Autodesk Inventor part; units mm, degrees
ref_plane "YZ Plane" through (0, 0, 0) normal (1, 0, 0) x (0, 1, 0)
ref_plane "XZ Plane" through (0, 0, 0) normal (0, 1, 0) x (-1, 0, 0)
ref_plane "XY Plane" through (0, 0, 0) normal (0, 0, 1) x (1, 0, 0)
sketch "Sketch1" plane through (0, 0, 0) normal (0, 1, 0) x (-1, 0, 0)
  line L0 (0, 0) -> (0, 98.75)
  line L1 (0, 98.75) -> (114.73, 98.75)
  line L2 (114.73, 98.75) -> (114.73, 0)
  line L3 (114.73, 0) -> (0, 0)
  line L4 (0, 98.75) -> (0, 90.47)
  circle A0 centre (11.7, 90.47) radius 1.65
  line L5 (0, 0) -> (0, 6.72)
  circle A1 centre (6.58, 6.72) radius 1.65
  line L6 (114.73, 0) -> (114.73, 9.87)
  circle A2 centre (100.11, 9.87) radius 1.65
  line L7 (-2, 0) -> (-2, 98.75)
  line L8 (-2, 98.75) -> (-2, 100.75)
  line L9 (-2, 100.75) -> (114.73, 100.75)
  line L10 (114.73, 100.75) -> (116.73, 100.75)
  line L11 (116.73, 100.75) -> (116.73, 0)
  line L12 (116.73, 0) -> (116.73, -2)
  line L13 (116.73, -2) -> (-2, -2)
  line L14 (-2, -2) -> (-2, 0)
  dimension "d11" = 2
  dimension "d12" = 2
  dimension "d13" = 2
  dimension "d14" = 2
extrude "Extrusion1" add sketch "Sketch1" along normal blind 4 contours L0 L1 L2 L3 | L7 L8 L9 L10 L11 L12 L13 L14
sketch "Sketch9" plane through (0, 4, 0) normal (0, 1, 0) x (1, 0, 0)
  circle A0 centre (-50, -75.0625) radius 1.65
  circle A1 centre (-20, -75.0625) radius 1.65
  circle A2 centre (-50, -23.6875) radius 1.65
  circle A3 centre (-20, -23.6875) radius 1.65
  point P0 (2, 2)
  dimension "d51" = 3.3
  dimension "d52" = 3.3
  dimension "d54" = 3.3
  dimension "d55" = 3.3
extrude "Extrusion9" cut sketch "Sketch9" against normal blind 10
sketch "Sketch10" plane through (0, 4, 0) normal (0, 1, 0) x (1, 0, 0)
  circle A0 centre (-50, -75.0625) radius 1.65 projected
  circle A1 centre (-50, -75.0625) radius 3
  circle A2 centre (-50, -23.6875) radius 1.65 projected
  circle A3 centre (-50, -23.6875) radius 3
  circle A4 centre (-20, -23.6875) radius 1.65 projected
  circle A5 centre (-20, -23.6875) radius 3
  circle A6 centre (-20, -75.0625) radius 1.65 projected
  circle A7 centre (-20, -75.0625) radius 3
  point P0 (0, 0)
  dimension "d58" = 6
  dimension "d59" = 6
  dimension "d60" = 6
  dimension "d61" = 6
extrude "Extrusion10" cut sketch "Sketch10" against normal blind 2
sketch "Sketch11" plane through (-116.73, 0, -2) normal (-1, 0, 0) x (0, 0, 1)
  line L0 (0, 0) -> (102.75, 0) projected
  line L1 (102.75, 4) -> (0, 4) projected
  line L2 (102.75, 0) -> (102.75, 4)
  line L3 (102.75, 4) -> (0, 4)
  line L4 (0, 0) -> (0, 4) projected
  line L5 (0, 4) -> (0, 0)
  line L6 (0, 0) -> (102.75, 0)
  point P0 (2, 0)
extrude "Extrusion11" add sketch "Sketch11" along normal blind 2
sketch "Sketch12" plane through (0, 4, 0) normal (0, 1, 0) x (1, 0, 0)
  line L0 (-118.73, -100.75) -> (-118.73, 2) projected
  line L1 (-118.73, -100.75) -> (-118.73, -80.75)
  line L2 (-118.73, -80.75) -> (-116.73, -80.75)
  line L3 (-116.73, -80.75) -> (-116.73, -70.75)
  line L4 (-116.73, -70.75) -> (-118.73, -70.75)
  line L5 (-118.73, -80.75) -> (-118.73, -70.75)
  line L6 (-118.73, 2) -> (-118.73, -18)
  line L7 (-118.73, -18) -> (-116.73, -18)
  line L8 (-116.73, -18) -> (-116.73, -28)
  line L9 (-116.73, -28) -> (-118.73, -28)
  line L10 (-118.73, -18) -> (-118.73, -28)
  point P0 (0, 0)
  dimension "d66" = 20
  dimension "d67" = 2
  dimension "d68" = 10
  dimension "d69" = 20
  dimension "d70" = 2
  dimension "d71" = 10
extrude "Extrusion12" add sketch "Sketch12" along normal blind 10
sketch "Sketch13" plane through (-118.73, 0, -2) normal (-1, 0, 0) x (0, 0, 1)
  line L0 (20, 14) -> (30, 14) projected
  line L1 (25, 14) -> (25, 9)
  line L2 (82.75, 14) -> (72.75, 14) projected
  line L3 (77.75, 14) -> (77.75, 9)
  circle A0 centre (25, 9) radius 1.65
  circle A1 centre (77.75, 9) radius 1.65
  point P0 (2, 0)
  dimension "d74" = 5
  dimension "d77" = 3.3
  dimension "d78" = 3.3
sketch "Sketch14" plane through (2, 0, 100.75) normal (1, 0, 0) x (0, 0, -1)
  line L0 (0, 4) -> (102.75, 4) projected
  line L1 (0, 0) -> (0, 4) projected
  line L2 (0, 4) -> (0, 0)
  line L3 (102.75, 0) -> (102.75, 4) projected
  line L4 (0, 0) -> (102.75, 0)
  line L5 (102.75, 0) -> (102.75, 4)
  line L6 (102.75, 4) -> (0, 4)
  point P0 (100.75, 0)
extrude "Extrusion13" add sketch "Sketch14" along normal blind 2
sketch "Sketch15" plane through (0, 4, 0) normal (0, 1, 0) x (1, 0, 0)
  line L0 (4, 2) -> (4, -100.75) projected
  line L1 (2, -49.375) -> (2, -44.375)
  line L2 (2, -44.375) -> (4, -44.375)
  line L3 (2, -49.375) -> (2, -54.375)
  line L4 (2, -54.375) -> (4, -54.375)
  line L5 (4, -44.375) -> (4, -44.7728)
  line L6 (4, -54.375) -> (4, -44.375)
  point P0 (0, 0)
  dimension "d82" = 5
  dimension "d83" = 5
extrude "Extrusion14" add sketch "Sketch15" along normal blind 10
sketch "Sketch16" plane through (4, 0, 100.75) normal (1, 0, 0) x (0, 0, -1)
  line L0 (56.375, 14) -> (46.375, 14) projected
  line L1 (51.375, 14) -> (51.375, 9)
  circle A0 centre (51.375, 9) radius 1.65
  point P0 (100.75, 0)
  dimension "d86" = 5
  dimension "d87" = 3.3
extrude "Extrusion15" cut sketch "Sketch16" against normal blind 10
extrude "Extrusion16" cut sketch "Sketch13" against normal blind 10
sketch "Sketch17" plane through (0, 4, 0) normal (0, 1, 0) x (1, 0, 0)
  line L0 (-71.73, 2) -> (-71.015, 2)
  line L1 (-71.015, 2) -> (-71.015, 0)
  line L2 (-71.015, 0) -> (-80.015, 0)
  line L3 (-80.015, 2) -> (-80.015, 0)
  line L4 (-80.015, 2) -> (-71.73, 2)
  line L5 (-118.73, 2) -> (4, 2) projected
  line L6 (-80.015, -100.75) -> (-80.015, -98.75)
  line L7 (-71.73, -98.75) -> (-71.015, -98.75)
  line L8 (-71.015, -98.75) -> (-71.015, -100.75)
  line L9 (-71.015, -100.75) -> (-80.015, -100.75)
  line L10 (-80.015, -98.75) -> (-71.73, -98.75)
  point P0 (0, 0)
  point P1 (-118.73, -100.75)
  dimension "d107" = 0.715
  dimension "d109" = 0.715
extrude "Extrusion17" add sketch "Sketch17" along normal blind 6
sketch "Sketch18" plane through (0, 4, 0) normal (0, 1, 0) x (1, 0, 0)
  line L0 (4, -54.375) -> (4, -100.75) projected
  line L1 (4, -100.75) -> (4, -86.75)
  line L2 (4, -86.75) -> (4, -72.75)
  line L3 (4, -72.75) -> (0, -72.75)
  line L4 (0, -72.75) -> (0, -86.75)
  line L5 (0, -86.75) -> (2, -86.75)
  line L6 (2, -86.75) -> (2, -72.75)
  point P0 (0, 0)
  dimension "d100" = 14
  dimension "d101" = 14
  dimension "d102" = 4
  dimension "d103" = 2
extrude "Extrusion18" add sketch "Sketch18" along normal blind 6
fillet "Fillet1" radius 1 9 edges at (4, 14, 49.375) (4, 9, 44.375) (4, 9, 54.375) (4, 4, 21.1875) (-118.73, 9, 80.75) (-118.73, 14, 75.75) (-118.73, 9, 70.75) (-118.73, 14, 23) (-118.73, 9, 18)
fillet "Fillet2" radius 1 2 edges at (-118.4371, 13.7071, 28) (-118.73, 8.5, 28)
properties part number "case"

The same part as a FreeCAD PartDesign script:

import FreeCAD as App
import Part
import Sketcher


def edges_at(feature, points):
    """Names of the edges that pass closest to the given points."""
    edges = feature.Shape.Edges
    near = lambda p: min(range(len(edges)), key=lambda i: edges[i].distToShape(Part.Vertex(*p))[0])
    return sorted({f"Edge{near(p) + 1}" for p in points})

doc = App.newDocument("Part")
body = doc.addObject("PartDesign::Body", "Body")

sketch1 = doc.addObject("Sketcher::SketchObject", "Sketch")
body.addObject(sketch1)
sketch1.AttachmentSupport = (doc.XZ_Plane, [""])
sketch1.MapMode = "FlatFace"
sketch1.addGeometry([
    Part.LineSegment(App.Vector(2, -2, 0), App.Vector(-116.7, -2, 0)),
    Part.LineSegment(App.Vector(-116.7, -2, 0), App.Vector(-116.7, 100.8, 0)),
    Part.LineSegment(App.Vector(-116.7, 100.8, 0), App.Vector(2, 100.8, 0)),
    Part.LineSegment(App.Vector(2, 100.8, 0), App.Vector(2, -2, 0)),
    Part.Circle(App.Vector(-6.6, 6.7, 0), App.Vector(0, 0, 1), 1.6),
    Part.Circle(App.Vector(-100.1, 9.9, 0), App.Vector(0, 0, 1), 1.6),
    Part.Circle(App.Vector(-11.7, 90.5, 0), App.Vector(0, 0, 1), 1.6),
], False)
sketch1.addConstraint([
    Sketcher.Constraint("Coincident", 0, 2, 1, 1),
    Sketcher.Constraint("Coincident", 1, 2, 2, 1),
    Sketcher.Constraint("Coincident", 2, 2, 3, 1),
    Sketcher.Constraint("Coincident", 3, 2, 0, 1),
    Sketcher.Constraint("Horizontal", 0),
    Sketcher.Constraint("Vertical", 1),
    Sketcher.Constraint("Horizontal", 2),
    Sketcher.Constraint("Vertical", 3),
    Sketcher.Constraint("Equal", 4, 5),
    Sketcher.Constraint("Equal", 5, 6),
    Sketcher.Constraint("DistanceY", 0, 2, -1, 1, 2.0),
    Sketcher.Constraint("DistanceX", -1, 1, 2, 2, 2.0),
    Sketcher.Constraint("Diameter", 4, 3.3),
    Sketcher.Constraint("DistanceX", 0, 2, 0, 1, 118.73),
    Sketcher.Constraint("DistanceY", 1, 1, 1, 2, 102.75),
    Sketcher.Constraint("DistanceX", 6, 3, -1, 1, 11.7),
    Sketcher.Constraint("DistanceY", 5, 3, 6, 3, 80.6),
    Sketcher.Constraint("DistanceX", 4, 3, -1, 1, 6.58),
    Sketcher.Constraint("DistanceY", -1, 1, 4, 3, 6.72),
    Sketcher.Constraint("DistanceX", 5, 3, -1, 1, 100.11),
    Sketcher.Constraint("DistanceY", -1, 1, 5, 3, 9.87),
])
pad1 = doc.addObject("PartDesign::Pad", "Pad")
body.addObject(pad1)
pad1.Profile = sketch1
pad1.Length = 4
pad1.Reversed = True

sketch2 = doc.addObject("Sketcher::SketchObject", "Sketch001")
body.addObject(sketch2)
sketch2.AttachmentSupport = (doc.XZ_Plane, [""])
sketch2.MapMode = "FlatFace"
sketch2.AttachmentOffset = App.Placement(App.Vector(0, 0, -4), App.Rotation())
sketch2.addGeometry([
    Part.Circle(App.Vector(-50, 75.1, 0), App.Vector(0, 0, 1), 1.6),
    Part.Circle(App.Vector(-20, 75.1, 0), App.Vector(0, 0, 1), 1.6),
    Part.Circle(App.Vector(-50, 23.7, 0), App.Vector(0, 0, 1), 1.6),
    Part.Circle(App.Vector(-20, 23.7, 0), App.Vector(0, 0, 1), 1.6),
], False)
sketch2.addConstraint([
    Sketcher.Constraint("Equal", 0, 1),
    Sketcher.Constraint("Equal", 1, 2),
    Sketcher.Constraint("Equal", 2, 3),
    Sketcher.Constraint("Horizontal", 0, 3, 1, 3),
    Sketcher.Constraint("Horizontal", 2, 3, 3, 3),
    Sketcher.Constraint("Vertical", 0, 3, 2, 3),
    Sketcher.Constraint("Vertical", 1, 3, 3, 3),
    Sketcher.Constraint("Diameter", 0, 3.3),
    Sketcher.Constraint("DistanceX", 0, 3, -1, 1, 50.0),
    Sketcher.Constraint("DistanceX", 1, 3, -1, 1, 20.0),
    Sketcher.Constraint("DistanceY", 2, 3, 0, 3, 51.375),
    Sketcher.Constraint("DistanceY", -1, 1, 0, 3, 75.0625),
])
pocket1 = doc.addObject("PartDesign::Pocket", "Pocket")
body.addObject(pocket1)
pocket1.Profile = sketch2
pocket1.Length = 10
pocket1.Reversed = True

sketch3 = doc.addObject("Sketcher::SketchObject", "Sketch002")
body.addObject(sketch3)
sketch3.AttachmentSupport = (doc.XZ_Plane, [""])
sketch3.MapMode = "FlatFace"
sketch3.AttachmentOffset = App.Placement(App.Vector(0, 0, -4), App.Rotation())
sketch3.addGeometry([
    Part.Circle(App.Vector(-50, 75.1, 0), App.Vector(0, 0, 1), 3),
    Part.Circle(App.Vector(-50, 75.1, 0), App.Vector(0, 0, 1), 1.6),
    Part.Circle(App.Vector(-50, 23.7, 0), App.Vector(0, 0, 1), 3),
    Part.Circle(App.Vector(-50, 23.7, 0), App.Vector(0, 0, 1), 1.6),
    Part.Circle(App.Vector(-20, 23.7, 0), App.Vector(0, 0, 1), 3),
    Part.Circle(App.Vector(-20, 23.7, 0), App.Vector(0, 0, 1), 1.6),
    Part.Circle(App.Vector(-20, 75.1, 0), App.Vector(0, 0, 1), 3),
    Part.Circle(App.Vector(-20, 75.1, 0), App.Vector(0, 0, 1), 1.6),
], False)
sketch3.addConstraint([
    Sketcher.Constraint("Coincident", 1, 3, 0, 3),
    Sketcher.Constraint("Coincident", 3, 3, 2, 3),
    Sketcher.Constraint("Coincident", 5, 3, 4, 3),
    Sketcher.Constraint("Coincident", 7, 3, 6, 3),
    Sketcher.Constraint("Equal", 0, 2),
    Sketcher.Constraint("Equal", 1, 3),
    Sketcher.Constraint("Equal", 2, 4),
    Sketcher.Constraint("Equal", 3, 5),
    Sketcher.Constraint("Equal", 4, 6),
    Sketcher.Constraint("Equal", 5, 7),
    Sketcher.Constraint("Horizontal", 3, 3, 4, 3),
    Sketcher.Constraint("Horizontal", 1, 3, 6, 3),
    Sketcher.Constraint("Vertical", 1, 3, 2, 3),
    Sketcher.Constraint("Vertical", 5, 3, 6, 3),
    Sketcher.Constraint("Diameter", 0, 6.0),
    Sketcher.Constraint("Diameter", 1, 3.3),
    Sketcher.Constraint("DistanceX", 0, 3, -1, 1, 50.0),
    Sketcher.Constraint("DistanceX", 4, 3, -1, 1, 20.0),
    Sketcher.Constraint("DistanceY", 2, 3, 0, 3, 51.375),
    Sketcher.Constraint("DistanceY", -1, 1, 0, 3, 75.0625),
])
pocket2 = doc.addObject("PartDesign::Pocket", "Pocket001")
body.addObject(pocket2)
pocket2.Profile = sketch3
pocket2.Length = 2
pocket2.Reversed = True

sketch4 = doc.addObject("Sketcher::SketchObject", "Sketch003")
body.addObject(sketch4)
sketch4.AttachmentSupport = (doc.YZ_Plane, [""])
sketch4.MapMode = "FlatFace"
sketch4.AttachmentOffset = App.Placement(App.Vector(0, 0, -116.73), App.Rotation())
sketch4.addGeometry([
    Part.LineSegment(App.Vector(4, -2, 0), App.Vector(0, -2, 0)),
    Part.LineSegment(App.Vector(0, -2, 0), App.Vector(0, 100.8, 0)),
    Part.LineSegment(App.Vector(0, 100.8, 0), App.Vector(4, 100.8, 0)),
    Part.LineSegment(App.Vector(4, 100.8, 0), App.Vector(4, -2, 0)),
], False)
sketch4.addConstraint([
    Sketcher.Constraint("Coincident", 0, 2, 1, 1),
    Sketcher.Constraint("Coincident", 1, 2, 2, 1),
    Sketcher.Constraint("Coincident", 2, 2, 3, 1),
    Sketcher.Constraint("Coincident", 3, 2, 0, 1),
    Sketcher.Constraint("Horizontal", 0),
    Sketcher.Constraint("Vertical", 1),
    Sketcher.Constraint("Horizontal", 2),
    Sketcher.Constraint("Vertical", 3),
    Sketcher.Constraint("PointOnObject", 0, 2, -2),
    Sketcher.Constraint("DistanceX", 0, 2, 0, 1, 4.0),
    Sketcher.Constraint("DistanceY", 0, 2, -1, 1, 2.0),
    Sketcher.Constraint("DistanceY", 1, 1, 1, 2, 102.75),
])
pad2 = doc.addObject("PartDesign::Pad", "Pad001")
body.addObject(pad2)
pad2.Profile = sketch4
pad2.Length = 2
pad2.Reversed = True

sketch5 = doc.addObject("Sketcher::SketchObject", "Sketch004")
body.addObject(sketch5)
sketch5.AttachmentSupport = (doc.XZ_Plane, [""])
sketch5.MapMode = "FlatFace"
sketch5.AttachmentOffset = App.Placement(App.Vector(0, 0, -4), App.Rotation())
sketch5.addGeometry([
    Part.LineSegment(App.Vector(-118.7, 18, 0), App.Vector(-118.7, 28, 0)),
    Part.LineSegment(App.Vector(-118.7, 28, 0), App.Vector(-116.7, 28, 0)),
    Part.LineSegment(App.Vector(-116.7, 28, 0), App.Vector(-116.7, 18, 0)),
    Part.LineSegment(App.Vector(-116.7, 18, 0), App.Vector(-118.7, 18, 0)),
    Part.LineSegment(App.Vector(-118.7, 70.8, 0), App.Vector(-118.7, 80.8, 0)),
    Part.LineSegment(App.Vector(-118.7, 80.8, 0), App.Vector(-116.7, 80.8, 0)),
    Part.LineSegment(App.Vector(-116.7, 80.8, 0), App.Vector(-116.7, 70.8, 0)),
    Part.LineSegment(App.Vector(-116.7, 70.8, 0), App.Vector(-118.7, 70.8, 0)),
], False)
sketch5.addConstraint([
    Sketcher.Constraint("Coincident", 0, 2, 1, 1),
    Sketcher.Constraint("Coincident", 1, 2, 2, 1),
    Sketcher.Constraint("Coincident", 2, 2, 3, 1),
    Sketcher.Constraint("Coincident", 3, 2, 0, 1),
    Sketcher.Constraint("Coincident", 4, 2, 5, 1),
    Sketcher.Constraint("Coincident", 5, 2, 6, 1),
    Sketcher.Constraint("Coincident", 6, 2, 7, 1),
    Sketcher.Constraint("Coincident", 7, 2, 4, 1),
    Sketcher.Constraint("Vertical", 0),
    Sketcher.Constraint("Horizontal", 1),
    Sketcher.Constraint("Vertical", 2),
    Sketcher.Constraint("Horizontal", 3),
    Sketcher.Constraint("Vertical", 4),
    Sketcher.Constraint("Horizontal", 5),
    Sketcher.Constraint("Vertical", 6),
    Sketcher.Constraint("Horizontal", 7),
    Sketcher.Constraint("Vertical", 3, 2, 4, 2),
    Sketcher.Constraint("Vertical", 2, 2, 5, 2),
    Sketcher.Constraint("Equal", 2, 4),
    Sketcher.Constraint("DistanceX", 1, 1, 1, 2, 2.0),
    Sketcher.Constraint("DistanceY", 0, 1, 0, 2, 10.0),
    Sketcher.Constraint("DistanceY", -1, 1, 0, 2, 28.0),
    Sketcher.Constraint("DistanceX", 0, 2, -1, 1, 118.73),
    Sketcher.Constraint("DistanceY", -1, 1, 4, 2, 80.75),
])
pad3 = doc.addObject("PartDesign::Pad", "Pad002")
body.addObject(pad3)
pad3.Profile = sketch5
pad3.Length = 10
pad3.Reversed = True

sketch6 = doc.addObject("Sketcher::SketchObject", "Sketch005")
body.addObject(sketch6)
sketch6.AttachmentSupport = (doc.YZ_Plane, [""])
sketch6.MapMode = "FlatFace"
sketch6.AttachmentOffset = App.Placement(App.Vector(0, 0, 2), App.Rotation())
sketch6.addGeometry([
    Part.LineSegment(App.Vector(4, -2, 0), App.Vector(4, 100.8, 0)),
    Part.LineSegment(App.Vector(4, 100.8, 0), App.Vector(0, 100.8, 0)),
    Part.LineSegment(App.Vector(0, 100.8, 0), App.Vector(0, -2, 0)),
    Part.LineSegment(App.Vector(0, -2, 0), App.Vector(4, -2, 0)),
], False)
sketch6.addConstraint([
    Sketcher.Constraint("Coincident", 0, 2, 1, 1),
    Sketcher.Constraint("Coincident", 1, 2, 2, 1),
    Sketcher.Constraint("Coincident", 2, 2, 3, 1),
    Sketcher.Constraint("Coincident", 3, 2, 0, 1),
    Sketcher.Constraint("Vertical", 0),
    Sketcher.Constraint("Horizontal", 1),
    Sketcher.Constraint("Vertical", 2),
    Sketcher.Constraint("Horizontal", 3),
    Sketcher.Constraint("PointOnObject", 1, 2, -2),
    Sketcher.Constraint("DistanceX", 1, 2, 1, 1, 4.0),
    Sketcher.Constraint("DistanceY", 2, 2, -1, 1, 2.0),
    Sketcher.Constraint("DistanceY", 0, 1, 0, 2, 102.75),
])
pad4 = doc.addObject("PartDesign::Pad", "Pad003")
body.addObject(pad4)
pad4.Profile = sketch6
pad4.Length = 2

sketch7 = doc.addObject("Sketcher::SketchObject", "Sketch006")
body.addObject(sketch7)
sketch7.AttachmentSupport = (doc.XZ_Plane, [""])
sketch7.MapMode = "FlatFace"
sketch7.AttachmentOffset = App.Placement(App.Vector(0, 0, -4), App.Rotation())
sketch7.addGeometry([
    Part.LineSegment(App.Vector(4, 54.4, 0), App.Vector(4, 44.4, 0)),
    Part.LineSegment(App.Vector(4, 44.4, 0), App.Vector(2, 44.4, 0)),
    Part.LineSegment(App.Vector(2, 44.4, 0), App.Vector(2, 54.4, 0)),
    Part.LineSegment(App.Vector(2, 54.4, 0), App.Vector(4, 54.4, 0)),
], False)
sketch7.addConstraint([
    Sketcher.Constraint("Coincident", 0, 2, 1, 1),
    Sketcher.Constraint("Coincident", 1, 2, 2, 1),
    Sketcher.Constraint("Coincident", 2, 2, 3, 1),
    Sketcher.Constraint("Coincident", 3, 2, 0, 1),
    Sketcher.Constraint("Vertical", 0),
    Sketcher.Constraint("Horizontal", 1),
    Sketcher.Constraint("Vertical", 2),
    Sketcher.Constraint("Horizontal", 3),
    Sketcher.Constraint("DistanceX", 1, 2, 1, 1, 2.0),
    Sketcher.Constraint("DistanceY", 0, 2, 0, 1, 10.0),
    Sketcher.Constraint("DistanceX", -1, 1, 0, 2, 4.0),
    Sketcher.Constraint("DistanceY", -1, 1, 0, 2, 44.375),
])
pad5 = doc.addObject("PartDesign::Pad", "Pad004")
body.addObject(pad5)
pad5.Profile = sketch7
pad5.Length = 10
pad5.Reversed = True

sketch8 = doc.addObject("Sketcher::SketchObject", "Sketch007")
body.addObject(sketch8)
sketch8.AttachmentSupport = (doc.YZ_Plane, [""])
sketch8.MapMode = "FlatFace"
sketch8.AttachmentOffset = App.Placement(App.Vector(0, 0, 4), App.Rotation())
sketch8.addGeometry(Part.Circle(App.Vector(9, 49.4, 0), App.Vector(0, 0, 1), 1.6), False)
sketch8.addConstraint([
    Sketcher.Constraint("Diameter", 0, 3.3),
    Sketcher.Constraint("DistanceX", -1, 1, 0, 3, 9.0),
    Sketcher.Constraint("DistanceY", -1, 1, 0, 3, 49.375),
])
pocket3 = doc.addObject("PartDesign::Pocket", "Pocket002")
body.addObject(pocket3)
pocket3.Profile = sketch8
pocket3.Length = 10

sketch9 = doc.addObject("Sketcher::SketchObject", "Sketch008")
body.addObject(sketch9)
sketch9.AttachmentSupport = (doc.YZ_Plane, [""])
sketch9.MapMode = "FlatFace"
sketch9.AttachmentOffset = App.Placement(App.Vector(0, 0, -118.73), App.Rotation())
sketch9.addGeometry([
    Part.Circle(App.Vector(9, 23, 0), App.Vector(0, 0, 1), 1.6),
    Part.Circle(App.Vector(9, 75.8, 0), App.Vector(0, 0, 1), 1.6),
], False)
sketch9.addConstraint([
    Sketcher.Constraint("Equal", 0, 1),
    Sketcher.Constraint("Vertical", 0, 3, 1, 3),
    Sketcher.Constraint("Diameter", 0, 3.3),
    Sketcher.Constraint("DistanceX", -1, 1, 0, 3, 9.0),
    Sketcher.Constraint("DistanceY", -1, 1, 0, 3, 23.0),
    Sketcher.Constraint("DistanceY", -1, 1, 1, 3, 75.75),
])
pocket4 = doc.addObject("PartDesign::Pocket", "Pocket003")
body.addObject(pocket4)
pocket4.Profile = sketch9
pocket4.Length = 10
pocket4.Reversed = True

sketch10 = doc.addObject("Sketcher::SketchObject", "Sketch009")
body.addObject(sketch10)
sketch10.AttachmentSupport = (doc.XZ_Plane, [""])
sketch10.MapMode = "FlatFace"
sketch10.AttachmentOffset = App.Placement(App.Vector(0, 0, -4), App.Rotation())
sketch10.addGeometry([
    Part.LineSegment(App.Vector(-71, -2, 0), App.Vector(-80, -2, 0)),
    Part.LineSegment(App.Vector(-80, -2, 0), App.Vector(-80, 0, 0)),
    Part.LineSegment(App.Vector(-80, 0, 0), App.Vector(-71, 0, 0)),
    Part.LineSegment(App.Vector(-71, 0, 0), App.Vector(-71, -2, 0)),
    Part.LineSegment(App.Vector(-80, 98.8, 0), App.Vector(-80, 100.8, 0)),
    Part.LineSegment(App.Vector(-80, 100.8, 0), App.Vector(-71, 100.8, 0)),
    Part.LineSegment(App.Vector(-71, 100.8, 0), App.Vector(-71, 98.8, 0)),
    Part.LineSegment(App.Vector(-71, 98.8, 0), App.Vector(-80, 98.8, 0)),
], False)
sketch10.addConstraint([
    Sketcher.Constraint("Coincident", 0, 2, 1, 1),
    Sketcher.Constraint("Coincident", 1, 2, 2, 1),
    Sketcher.Constraint("Coincident", 2, 2, 3, 1),
    Sketcher.Constraint("Coincident", 3, 2, 0, 1),
    Sketcher.Constraint("Coincident", 4, 2, 5, 1),
    Sketcher.Constraint("Coincident", 5, 2, 6, 1),
    Sketcher.Constraint("Coincident", 6, 2, 7, 1),
    Sketcher.Constraint("Coincident", 7, 2, 4, 1),
    Sketcher.Constraint("Horizontal", 0),
    Sketcher.Constraint("Vertical", 1),
    Sketcher.Constraint("Horizontal", 2),
    Sketcher.Constraint("Vertical", 3),
    Sketcher.Constraint("Vertical", 4),
    Sketcher.Constraint("Horizontal", 5),
    Sketcher.Constraint("Vertical", 6),
    Sketcher.Constraint("Horizontal", 7),
    Sketcher.Constraint("PointOnObject", 1, 2, -1),
    Sketcher.Constraint("Vertical", 1, 2, 4, 2),
    Sketcher.Constraint("Vertical", 3, 2, 5, 2),
    Sketcher.Constraint("Equal", 3, 4),
    Sketcher.Constraint("DistanceX", 0, 2, 0, 1, 9.0),
    Sketcher.Constraint("DistanceY", 1, 1, 1, 2, 2.0),
    Sketcher.Constraint("DistanceY", -1, 1, 4, 2, 100.75),
    Sketcher.Constraint("DistanceX", 0, 2, -1, 1, 80.015),
])
pad6 = doc.addObject("PartDesign::Pad", "Pad005")
body.addObject(pad6)
pad6.Profile = sketch10
pad6.Length = 6
pad6.Reversed = True

sketch11 = doc.addObject("Sketcher::SketchObject", "Sketch010")
body.addObject(sketch11)
sketch11.AttachmentSupport = (doc.XZ_Plane, [""])
sketch11.MapMode = "FlatFace"
sketch11.AttachmentOffset = App.Placement(App.Vector(0, 0, -4), App.Rotation())
sketch11.addGeometry([
    Part.LineSegment(App.Vector(2, 86.8, 0), App.Vector(2, 72.8, 0)),
    Part.LineSegment(App.Vector(2, 72.8, 0), App.Vector(0, 72.8, 0)),
    Part.LineSegment(App.Vector(0, 72.8, 0), App.Vector(0, 86.8, 0)),
    Part.LineSegment(App.Vector(0, 86.8, 0), App.Vector(2, 86.8, 0)),
], False)
sketch11.addConstraint([
    Sketcher.Constraint("Coincident", 0, 2, 1, 1),
    Sketcher.Constraint("Coincident", 1, 2, 2, 1),
    Sketcher.Constraint("Coincident", 2, 2, 3, 1),
    Sketcher.Constraint("Coincident", 3, 2, 0, 1),
    Sketcher.Constraint("Vertical", 0),
    Sketcher.Constraint("Horizontal", 1),
    Sketcher.Constraint("Vertical", 2),
    Sketcher.Constraint("Horizontal", 3),
    Sketcher.Constraint("PointOnObject", 1, 2, -2),
    Sketcher.Constraint("DistanceX", 1, 2, 1, 1, 2.0),
    Sketcher.Constraint("DistanceY", 0, 2, 0, 1, 14.0),
    Sketcher.Constraint("DistanceY", -1, 1, 0, 2, 72.75),
])
pad7 = doc.addObject("PartDesign::Pad", "Pad006")
body.addObject(pad7)
pad7.Profile = sketch11
pad7.Length = 6
pad7.Reversed = True
doc.recompute()

fillet = doc.addObject("PartDesign::Fillet", "Fillet")
body.addObject(fillet)
fillet.Base = (pad7, edges_at(pad7, [
    (4, 14, 49.375),
    (4, 9, 44.375),
    (4, 9, 54.375),
    (4, 4, 21.188),
    (-118.73, 9, 80.75),
    (-118.73, 14, 75.75),
    (-118.73, 9, 70.75),
    (-118.73, 14, 23),
    (-118.73, 9, 18),
]))
fillet.Radius = 1
doc.recompute()

fillet2 = doc.addObject("PartDesign::Fillet", "Fillet001")
body.addObject(fillet2)
fillet2.Base = (fillet, edges_at(fillet, [(-118.437, 13.707, 28), (-118.73, 8.5, 28)]))
fillet2.Radius = 1

doc.recompute()
